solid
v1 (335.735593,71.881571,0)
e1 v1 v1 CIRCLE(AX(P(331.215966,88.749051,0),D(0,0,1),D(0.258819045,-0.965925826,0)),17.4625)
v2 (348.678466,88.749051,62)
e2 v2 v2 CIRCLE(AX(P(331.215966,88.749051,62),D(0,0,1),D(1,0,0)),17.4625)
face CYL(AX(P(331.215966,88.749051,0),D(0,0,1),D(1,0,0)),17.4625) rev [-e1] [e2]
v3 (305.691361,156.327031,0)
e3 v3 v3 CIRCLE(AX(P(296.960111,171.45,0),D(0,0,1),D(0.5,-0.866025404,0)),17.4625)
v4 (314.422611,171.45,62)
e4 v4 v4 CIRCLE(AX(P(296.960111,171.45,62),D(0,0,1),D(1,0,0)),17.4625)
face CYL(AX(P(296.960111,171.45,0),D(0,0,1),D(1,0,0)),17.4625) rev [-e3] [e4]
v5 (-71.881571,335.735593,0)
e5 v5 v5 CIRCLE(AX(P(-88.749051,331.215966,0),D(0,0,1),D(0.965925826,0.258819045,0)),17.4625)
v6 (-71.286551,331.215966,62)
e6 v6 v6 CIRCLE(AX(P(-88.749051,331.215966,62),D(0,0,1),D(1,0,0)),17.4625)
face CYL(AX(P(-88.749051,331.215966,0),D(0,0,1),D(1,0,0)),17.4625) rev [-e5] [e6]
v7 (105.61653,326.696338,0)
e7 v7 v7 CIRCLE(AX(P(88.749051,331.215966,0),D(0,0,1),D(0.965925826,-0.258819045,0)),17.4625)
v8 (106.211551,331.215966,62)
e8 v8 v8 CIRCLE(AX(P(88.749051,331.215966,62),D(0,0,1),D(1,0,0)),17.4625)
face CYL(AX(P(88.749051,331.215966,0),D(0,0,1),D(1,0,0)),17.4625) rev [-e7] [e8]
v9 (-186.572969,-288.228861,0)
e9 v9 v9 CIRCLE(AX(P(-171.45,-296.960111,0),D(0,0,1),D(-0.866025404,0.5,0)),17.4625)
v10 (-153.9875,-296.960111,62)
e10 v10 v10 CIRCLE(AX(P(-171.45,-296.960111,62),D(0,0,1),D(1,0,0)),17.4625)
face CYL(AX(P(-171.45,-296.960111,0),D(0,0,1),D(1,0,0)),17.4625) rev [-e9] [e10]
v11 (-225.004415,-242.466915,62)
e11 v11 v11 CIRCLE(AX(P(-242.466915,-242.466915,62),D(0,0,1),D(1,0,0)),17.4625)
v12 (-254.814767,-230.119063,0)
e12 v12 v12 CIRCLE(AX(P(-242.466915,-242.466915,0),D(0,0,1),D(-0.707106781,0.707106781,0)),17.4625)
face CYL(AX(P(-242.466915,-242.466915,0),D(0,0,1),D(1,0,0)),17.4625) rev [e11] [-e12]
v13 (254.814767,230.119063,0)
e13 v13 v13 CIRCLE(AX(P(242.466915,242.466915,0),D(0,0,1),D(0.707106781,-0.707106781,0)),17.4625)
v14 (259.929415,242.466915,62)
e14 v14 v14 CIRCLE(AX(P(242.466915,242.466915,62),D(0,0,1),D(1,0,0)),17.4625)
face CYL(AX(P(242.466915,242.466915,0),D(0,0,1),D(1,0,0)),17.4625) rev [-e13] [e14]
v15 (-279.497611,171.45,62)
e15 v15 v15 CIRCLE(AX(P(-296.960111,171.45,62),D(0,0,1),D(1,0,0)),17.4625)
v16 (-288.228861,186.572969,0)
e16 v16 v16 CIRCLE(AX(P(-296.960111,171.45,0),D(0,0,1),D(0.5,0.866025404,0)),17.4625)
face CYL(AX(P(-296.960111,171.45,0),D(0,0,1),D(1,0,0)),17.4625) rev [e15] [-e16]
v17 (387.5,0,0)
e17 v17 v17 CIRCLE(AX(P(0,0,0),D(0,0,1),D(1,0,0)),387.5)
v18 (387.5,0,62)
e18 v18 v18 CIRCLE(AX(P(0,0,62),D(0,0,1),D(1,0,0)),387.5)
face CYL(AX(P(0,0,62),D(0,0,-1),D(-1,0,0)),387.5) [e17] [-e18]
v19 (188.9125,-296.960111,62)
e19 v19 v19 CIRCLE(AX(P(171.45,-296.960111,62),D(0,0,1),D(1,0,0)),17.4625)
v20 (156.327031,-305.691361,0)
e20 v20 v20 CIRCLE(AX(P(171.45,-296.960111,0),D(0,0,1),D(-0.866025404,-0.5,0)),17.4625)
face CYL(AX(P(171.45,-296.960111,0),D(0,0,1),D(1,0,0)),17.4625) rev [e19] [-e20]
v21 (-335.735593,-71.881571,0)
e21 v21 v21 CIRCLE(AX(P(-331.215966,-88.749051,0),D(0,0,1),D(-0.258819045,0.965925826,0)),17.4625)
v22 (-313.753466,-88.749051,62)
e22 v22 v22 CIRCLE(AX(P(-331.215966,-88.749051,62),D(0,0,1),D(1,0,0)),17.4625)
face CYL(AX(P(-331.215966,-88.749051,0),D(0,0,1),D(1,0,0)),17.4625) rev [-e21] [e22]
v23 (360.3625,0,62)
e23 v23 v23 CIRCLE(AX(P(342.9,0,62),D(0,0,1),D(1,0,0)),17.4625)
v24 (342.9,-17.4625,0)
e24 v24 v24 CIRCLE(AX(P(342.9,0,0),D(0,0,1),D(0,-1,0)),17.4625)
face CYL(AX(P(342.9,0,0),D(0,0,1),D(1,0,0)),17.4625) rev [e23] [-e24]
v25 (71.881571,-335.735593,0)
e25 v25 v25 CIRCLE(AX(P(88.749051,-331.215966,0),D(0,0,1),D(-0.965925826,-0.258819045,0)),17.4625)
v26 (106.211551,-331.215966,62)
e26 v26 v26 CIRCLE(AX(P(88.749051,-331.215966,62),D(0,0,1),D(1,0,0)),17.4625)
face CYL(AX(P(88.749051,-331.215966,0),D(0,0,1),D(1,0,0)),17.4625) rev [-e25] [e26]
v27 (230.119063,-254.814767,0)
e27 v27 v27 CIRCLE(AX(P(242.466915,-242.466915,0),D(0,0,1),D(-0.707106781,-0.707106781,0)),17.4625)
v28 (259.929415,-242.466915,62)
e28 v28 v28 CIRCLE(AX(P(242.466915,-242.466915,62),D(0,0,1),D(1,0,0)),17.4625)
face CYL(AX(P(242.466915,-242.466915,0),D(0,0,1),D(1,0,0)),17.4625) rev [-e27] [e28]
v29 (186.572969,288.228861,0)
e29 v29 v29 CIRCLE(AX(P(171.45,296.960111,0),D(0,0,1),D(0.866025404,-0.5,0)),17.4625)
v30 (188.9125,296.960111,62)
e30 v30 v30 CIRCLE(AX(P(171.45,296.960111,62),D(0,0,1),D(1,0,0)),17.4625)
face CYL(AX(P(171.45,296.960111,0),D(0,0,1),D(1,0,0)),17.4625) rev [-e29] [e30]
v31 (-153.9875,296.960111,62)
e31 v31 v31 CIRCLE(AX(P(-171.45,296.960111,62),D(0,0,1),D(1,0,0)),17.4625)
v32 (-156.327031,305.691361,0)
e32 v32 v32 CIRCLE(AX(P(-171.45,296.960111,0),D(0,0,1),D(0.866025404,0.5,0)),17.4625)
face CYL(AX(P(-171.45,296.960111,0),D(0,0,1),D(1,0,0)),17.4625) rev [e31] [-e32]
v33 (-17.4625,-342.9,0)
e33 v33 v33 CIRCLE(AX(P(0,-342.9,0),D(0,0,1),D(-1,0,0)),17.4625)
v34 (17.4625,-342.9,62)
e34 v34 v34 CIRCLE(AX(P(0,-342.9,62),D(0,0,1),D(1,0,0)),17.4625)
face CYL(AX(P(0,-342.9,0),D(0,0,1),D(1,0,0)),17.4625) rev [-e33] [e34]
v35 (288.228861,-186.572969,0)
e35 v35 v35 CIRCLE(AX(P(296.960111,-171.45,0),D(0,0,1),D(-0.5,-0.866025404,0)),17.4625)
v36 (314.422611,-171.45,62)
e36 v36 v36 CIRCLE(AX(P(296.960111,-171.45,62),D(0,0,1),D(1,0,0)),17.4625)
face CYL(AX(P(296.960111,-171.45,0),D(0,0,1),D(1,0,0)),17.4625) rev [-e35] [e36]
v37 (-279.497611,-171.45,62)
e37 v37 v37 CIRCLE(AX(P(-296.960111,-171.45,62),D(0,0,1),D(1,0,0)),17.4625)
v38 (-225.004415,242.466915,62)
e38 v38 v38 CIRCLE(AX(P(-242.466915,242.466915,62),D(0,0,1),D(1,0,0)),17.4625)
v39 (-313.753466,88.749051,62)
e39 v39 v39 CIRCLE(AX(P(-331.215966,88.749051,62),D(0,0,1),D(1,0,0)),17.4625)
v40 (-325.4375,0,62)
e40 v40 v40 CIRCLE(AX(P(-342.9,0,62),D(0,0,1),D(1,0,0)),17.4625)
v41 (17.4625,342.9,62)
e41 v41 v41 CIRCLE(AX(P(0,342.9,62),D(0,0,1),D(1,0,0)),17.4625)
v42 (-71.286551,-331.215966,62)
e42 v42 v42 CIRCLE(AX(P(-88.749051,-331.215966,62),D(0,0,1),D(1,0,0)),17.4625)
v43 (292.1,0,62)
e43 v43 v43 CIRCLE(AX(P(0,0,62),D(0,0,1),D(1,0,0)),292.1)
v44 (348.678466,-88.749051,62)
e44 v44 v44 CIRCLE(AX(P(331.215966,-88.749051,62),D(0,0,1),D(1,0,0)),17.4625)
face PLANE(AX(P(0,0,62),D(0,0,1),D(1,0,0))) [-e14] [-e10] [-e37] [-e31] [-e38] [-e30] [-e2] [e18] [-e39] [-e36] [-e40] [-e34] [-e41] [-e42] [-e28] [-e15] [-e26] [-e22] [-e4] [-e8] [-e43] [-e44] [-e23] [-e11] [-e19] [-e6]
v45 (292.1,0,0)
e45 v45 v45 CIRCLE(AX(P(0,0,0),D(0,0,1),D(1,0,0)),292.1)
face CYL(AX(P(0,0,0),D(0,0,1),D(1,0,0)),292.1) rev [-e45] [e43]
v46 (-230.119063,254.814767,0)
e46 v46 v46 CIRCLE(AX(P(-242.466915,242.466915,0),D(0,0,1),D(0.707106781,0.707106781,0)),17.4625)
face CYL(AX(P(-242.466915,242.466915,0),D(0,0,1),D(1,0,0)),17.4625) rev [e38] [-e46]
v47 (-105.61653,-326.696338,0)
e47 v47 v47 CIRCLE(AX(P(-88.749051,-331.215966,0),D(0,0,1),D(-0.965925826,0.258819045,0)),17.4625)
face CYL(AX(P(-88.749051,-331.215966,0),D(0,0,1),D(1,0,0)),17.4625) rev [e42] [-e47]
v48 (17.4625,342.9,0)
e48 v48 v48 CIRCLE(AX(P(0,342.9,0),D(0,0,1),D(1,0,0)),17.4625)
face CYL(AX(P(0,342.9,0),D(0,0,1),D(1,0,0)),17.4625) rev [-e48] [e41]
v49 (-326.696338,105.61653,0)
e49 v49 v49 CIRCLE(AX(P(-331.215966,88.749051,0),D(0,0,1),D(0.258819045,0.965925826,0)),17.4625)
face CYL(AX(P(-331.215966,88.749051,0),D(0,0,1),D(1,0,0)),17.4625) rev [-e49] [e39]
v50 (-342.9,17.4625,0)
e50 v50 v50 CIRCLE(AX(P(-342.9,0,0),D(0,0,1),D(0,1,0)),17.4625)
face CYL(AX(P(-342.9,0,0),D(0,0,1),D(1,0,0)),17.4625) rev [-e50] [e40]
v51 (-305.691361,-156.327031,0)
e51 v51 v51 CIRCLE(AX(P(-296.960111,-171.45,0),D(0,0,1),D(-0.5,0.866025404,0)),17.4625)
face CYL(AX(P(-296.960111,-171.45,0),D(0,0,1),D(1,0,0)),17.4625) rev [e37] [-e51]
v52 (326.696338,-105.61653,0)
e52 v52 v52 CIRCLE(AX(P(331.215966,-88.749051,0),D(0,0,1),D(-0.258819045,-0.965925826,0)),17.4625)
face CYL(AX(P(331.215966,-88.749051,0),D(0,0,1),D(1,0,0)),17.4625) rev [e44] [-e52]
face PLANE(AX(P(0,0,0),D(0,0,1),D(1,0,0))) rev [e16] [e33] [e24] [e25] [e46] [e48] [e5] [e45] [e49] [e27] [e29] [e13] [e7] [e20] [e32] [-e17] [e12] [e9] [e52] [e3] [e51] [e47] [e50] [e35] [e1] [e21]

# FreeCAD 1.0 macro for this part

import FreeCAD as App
import Part
import Sketcher
from FreeCAD import Vector
Q = App.Units.Quantity

doc = App.newDocument("Part")
body = doc.addObject("PartDesign::Body", "Body")

# Sketch on XY plane
sketch1 = body.newObject("Sketcher::SketchObject", "Sketch")
sketch1.AttachmentSupport = (doc.getObject("XY_Plane"), [""])
sketch1.MapMode = "FlatFace"
sketch1.addGeometry(Part.Circle(Vector(0, 0, 0), Vector(0, 0, 1), 387.5), False)
sketch1.addConstraint([
    Sketcher.Constraint("Coincident", 0, 3, -1, 1),
    Sketcher.Constraint("Diameter", 0, Q("775 mm")),
])
pad1 = body.newObject("PartDesign::Pad", "Pad")
pad1.Profile = sketch1
pad1.Length = 62

# Sketch on XY plane
sketch2 = body.newObject("Sketcher::SketchObject", "Sketch001")
sketch2.AttachmentSupport = (doc.getObject("XY_Plane"), [""])
sketch2.MapMode = "FlatFace"
sketch2.AttachmentOffset = App.Placement(Vector(0, 0, 62), App.Rotation())
sketch2.addGeometry(Part.Circle(Vector(0, 342.9, 0), Vector(0, 0, 1), 17.4625), False)
sketch2.addConstraint([
    Sketcher.Constraint("PointOnObject", 0, 3, -2),
    Sketcher.Constraint("Diameter", 0, Q("34.925 mm")),
    Sketcher.Constraint("DistanceY", -1, 1, 0, 3, Q("342.9 mm")),
])
pocket1 = body.newObject("PartDesign::Pocket", "Pocket")
pocket1.Profile = sketch2
pocket1.Length = 1105.007706
pocket1.Midplane = True

# Sketch on XY plane
sketch3 = body.newObject("Sketcher::SketchObject", "Sketch002")
sketch3.AttachmentSupport = (doc.getObject("XY_Plane"), [""])
sketch3.MapMode = "FlatFace"
sketch3.AttachmentOffset = App.Placement(Vector(0, 0, 62), App.Rotation())
sketch3.addGeometry(Part.Circle(Vector(0, 0, 0), Vector(0, 0, 1), 292.1), False)
sketch3.addConstraint([
    Sketcher.Constraint("Coincident", 0, 3, -1, 1),
    Sketcher.Constraint("Diameter", 0, Q("584.2 mm")),
])
pad2 = body.newObject("PartDesign::Pad", "Pad001")
pad2.Profile = sketch3
pad2.Length = 1.5
doc.recompute()

polarpattern = body.newObject("PartDesign::PolarPattern", "PolarPattern")
polarpattern.Originals = [pocket1]
polarpattern.Axis = (doc.getObject("Z_Axis"), [""])
polarpattern.Angle = 360
polarpattern.Occurrences = 24
body.Tip = polarpattern

# Sketch on XY plane
sketch4 = body.newObject("Sketcher::SketchObject", "Sketch003")
sketch4.AttachmentSupport = (doc.getObject("XY_Plane"), [""])
sketch4.MapMode = "FlatFace"
sketch4.AttachmentOffset = App.Placement(Vector(0, 0, 63.5), App.Rotation())
sketch4.addGeometry(Part.Circle(Vector(0, 0, 0), Vector(0, 0, 1), 292.1), False)
sketch4.addConstraint([
    Sketcher.Constraint("Coincident", 0, 3, -1, 1),
    Sketcher.Constraint("Diameter", 0, Q("584.2 mm")),
])
pocket2 = body.newObject("PartDesign::Pocket", "Pocket001")
pocket2.Profile = sketch4
pocket2.Type = "ThroughAll"
pocket2.Midplane = True

doc.recompute()
